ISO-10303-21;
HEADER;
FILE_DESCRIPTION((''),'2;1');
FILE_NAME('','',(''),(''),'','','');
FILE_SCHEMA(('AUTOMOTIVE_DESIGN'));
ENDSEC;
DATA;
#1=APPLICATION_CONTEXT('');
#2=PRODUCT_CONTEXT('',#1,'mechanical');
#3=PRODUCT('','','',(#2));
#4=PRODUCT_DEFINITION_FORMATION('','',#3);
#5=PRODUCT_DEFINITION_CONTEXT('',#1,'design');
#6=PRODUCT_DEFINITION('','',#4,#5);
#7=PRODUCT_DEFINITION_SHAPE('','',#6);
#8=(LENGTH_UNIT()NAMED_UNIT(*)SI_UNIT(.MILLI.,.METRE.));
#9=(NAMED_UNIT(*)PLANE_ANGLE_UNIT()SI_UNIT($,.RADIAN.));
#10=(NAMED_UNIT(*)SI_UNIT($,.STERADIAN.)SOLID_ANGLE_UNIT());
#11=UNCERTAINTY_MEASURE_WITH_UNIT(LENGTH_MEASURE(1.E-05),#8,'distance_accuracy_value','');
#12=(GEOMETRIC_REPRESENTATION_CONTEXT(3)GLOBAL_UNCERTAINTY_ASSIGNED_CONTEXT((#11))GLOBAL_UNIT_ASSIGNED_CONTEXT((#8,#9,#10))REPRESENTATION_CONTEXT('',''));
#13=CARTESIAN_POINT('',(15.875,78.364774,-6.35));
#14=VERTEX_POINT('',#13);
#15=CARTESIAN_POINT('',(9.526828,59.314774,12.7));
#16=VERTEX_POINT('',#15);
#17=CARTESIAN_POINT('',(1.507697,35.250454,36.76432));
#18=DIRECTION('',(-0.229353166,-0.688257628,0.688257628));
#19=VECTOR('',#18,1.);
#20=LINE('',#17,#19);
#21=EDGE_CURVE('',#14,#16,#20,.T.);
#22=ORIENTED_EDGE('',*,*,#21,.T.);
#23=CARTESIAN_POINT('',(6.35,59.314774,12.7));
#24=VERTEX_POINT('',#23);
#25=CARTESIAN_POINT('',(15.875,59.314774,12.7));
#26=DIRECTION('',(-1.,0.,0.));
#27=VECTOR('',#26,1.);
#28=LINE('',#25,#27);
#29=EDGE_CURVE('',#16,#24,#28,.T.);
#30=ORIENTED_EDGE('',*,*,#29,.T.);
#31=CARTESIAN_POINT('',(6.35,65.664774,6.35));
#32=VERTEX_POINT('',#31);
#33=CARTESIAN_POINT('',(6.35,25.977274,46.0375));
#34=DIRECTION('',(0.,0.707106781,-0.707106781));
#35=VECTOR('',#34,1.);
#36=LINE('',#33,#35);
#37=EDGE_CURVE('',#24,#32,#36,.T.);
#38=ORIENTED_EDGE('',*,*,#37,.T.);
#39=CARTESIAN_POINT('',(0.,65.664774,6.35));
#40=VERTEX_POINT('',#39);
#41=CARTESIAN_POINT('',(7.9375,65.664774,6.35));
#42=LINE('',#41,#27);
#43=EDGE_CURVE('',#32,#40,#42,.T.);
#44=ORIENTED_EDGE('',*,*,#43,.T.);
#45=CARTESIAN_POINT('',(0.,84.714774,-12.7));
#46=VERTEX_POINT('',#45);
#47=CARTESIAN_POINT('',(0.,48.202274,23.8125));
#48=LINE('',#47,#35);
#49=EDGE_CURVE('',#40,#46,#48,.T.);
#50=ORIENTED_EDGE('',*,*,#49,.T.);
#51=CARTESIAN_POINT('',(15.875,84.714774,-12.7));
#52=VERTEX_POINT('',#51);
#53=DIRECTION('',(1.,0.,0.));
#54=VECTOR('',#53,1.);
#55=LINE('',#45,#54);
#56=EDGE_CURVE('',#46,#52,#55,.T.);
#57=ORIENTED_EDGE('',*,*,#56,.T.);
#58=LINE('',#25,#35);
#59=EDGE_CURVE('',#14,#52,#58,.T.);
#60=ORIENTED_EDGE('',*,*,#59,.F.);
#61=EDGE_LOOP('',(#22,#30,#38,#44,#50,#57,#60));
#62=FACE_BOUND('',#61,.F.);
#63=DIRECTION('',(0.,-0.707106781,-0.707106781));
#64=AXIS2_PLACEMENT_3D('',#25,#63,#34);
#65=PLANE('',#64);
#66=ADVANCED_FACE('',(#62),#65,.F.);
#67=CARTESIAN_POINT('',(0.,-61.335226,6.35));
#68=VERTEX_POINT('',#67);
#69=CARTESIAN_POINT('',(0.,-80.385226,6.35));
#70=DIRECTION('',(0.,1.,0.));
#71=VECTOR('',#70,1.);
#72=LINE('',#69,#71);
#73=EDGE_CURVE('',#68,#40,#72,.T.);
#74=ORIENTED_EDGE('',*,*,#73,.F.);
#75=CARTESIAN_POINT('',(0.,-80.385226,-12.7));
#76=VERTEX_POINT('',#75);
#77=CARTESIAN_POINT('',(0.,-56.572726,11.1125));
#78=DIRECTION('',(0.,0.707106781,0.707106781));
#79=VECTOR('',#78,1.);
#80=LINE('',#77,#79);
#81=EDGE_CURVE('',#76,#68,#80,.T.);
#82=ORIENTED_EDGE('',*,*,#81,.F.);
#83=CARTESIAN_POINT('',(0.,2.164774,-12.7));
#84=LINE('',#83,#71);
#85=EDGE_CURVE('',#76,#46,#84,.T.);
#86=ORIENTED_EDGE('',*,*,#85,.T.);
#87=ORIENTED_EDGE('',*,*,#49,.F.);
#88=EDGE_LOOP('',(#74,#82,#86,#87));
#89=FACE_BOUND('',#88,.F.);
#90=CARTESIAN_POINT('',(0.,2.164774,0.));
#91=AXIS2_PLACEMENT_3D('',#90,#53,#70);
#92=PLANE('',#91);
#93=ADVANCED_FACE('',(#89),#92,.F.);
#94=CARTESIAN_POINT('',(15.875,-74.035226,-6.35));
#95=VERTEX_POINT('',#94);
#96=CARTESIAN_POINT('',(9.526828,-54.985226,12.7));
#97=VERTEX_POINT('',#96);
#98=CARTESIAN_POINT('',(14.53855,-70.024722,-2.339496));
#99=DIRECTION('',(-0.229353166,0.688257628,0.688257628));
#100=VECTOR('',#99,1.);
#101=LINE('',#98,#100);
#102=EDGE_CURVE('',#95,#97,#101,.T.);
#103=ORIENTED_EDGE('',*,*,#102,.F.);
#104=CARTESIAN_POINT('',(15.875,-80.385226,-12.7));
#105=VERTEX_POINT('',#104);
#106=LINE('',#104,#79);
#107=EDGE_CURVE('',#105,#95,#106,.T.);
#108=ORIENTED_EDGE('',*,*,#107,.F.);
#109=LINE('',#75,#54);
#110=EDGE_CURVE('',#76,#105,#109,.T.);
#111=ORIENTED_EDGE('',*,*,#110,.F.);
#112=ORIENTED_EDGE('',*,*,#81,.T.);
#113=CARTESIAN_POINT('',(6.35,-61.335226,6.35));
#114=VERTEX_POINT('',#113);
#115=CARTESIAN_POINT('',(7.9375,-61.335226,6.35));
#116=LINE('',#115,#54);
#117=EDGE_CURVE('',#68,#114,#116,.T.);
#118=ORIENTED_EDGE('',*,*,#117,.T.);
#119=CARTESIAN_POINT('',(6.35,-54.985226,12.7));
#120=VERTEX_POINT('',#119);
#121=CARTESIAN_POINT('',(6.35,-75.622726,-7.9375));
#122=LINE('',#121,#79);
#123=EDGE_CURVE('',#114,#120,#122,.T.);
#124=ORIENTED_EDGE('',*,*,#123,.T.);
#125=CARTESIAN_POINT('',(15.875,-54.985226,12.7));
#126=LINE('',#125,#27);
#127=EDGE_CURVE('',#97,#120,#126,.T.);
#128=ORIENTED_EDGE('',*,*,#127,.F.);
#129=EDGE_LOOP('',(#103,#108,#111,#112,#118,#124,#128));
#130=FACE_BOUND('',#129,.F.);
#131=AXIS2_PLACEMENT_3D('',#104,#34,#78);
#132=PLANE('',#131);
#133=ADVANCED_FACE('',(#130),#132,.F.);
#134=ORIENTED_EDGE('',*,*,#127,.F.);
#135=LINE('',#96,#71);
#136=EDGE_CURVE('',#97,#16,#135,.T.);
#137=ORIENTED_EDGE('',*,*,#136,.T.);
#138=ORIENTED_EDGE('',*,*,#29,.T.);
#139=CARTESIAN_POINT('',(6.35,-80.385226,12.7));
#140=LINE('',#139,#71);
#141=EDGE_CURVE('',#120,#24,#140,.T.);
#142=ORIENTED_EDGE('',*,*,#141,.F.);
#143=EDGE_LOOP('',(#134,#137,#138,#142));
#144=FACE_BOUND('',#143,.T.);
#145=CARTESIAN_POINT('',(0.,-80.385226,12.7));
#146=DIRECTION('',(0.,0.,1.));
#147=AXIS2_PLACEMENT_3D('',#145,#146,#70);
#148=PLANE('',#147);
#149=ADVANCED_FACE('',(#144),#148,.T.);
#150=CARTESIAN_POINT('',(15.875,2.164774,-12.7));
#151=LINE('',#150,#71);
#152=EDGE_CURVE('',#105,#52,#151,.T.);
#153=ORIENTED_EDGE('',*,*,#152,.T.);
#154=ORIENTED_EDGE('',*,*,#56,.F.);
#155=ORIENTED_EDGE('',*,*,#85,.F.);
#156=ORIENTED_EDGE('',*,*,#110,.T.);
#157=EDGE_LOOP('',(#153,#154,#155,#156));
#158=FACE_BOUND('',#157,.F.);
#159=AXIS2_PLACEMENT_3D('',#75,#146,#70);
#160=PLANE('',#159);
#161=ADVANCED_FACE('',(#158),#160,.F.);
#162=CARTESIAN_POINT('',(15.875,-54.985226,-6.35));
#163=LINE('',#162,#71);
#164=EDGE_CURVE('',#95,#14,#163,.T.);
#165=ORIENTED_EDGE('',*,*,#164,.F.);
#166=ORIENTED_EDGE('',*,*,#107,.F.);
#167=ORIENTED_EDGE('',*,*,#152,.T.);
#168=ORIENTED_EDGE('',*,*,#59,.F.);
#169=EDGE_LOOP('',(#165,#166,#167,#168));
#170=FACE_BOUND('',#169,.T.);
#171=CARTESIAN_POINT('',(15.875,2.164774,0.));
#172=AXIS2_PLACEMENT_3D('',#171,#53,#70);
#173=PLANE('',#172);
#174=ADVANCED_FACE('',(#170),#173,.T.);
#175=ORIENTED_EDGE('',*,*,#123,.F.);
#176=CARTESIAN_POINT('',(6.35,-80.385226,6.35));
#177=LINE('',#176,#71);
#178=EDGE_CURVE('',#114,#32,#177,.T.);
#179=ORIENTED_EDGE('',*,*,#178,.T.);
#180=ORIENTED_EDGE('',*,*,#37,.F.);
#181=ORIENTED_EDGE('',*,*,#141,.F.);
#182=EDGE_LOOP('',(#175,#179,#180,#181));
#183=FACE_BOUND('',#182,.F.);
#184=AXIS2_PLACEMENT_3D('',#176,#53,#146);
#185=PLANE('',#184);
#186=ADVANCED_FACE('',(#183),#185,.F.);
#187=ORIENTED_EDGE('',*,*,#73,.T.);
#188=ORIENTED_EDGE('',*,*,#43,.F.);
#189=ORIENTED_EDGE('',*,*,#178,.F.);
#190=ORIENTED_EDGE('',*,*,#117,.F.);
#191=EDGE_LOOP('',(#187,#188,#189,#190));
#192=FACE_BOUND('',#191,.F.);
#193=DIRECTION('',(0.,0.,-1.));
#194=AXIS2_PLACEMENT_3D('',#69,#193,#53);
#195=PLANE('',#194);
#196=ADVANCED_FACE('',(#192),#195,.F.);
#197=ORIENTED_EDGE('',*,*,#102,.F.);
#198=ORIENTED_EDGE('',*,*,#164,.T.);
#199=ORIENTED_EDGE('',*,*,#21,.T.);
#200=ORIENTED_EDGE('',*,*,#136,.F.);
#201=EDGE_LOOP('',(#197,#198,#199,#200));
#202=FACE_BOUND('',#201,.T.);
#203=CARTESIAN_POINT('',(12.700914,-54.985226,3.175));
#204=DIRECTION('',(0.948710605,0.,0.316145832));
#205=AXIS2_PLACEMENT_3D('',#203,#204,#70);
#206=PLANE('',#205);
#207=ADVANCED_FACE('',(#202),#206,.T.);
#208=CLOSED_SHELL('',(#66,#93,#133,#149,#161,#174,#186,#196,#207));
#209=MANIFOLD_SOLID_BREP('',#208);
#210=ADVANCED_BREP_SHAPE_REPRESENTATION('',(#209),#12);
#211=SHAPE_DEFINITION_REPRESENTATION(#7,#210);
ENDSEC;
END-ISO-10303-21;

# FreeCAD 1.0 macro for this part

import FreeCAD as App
import Part
import Sketcher

V = App.Vector
Q = App.Units.Quantity


def edges_at(feature, points):
    """Names of the edges that pass closest to the given points."""
    edges = feature.Shape.Edges
    near = lambda p: min(range(len(edges)), key=lambda i: edges[i].distToShape(Part.Vertex(*p))[0])
    return sorted({f"Edge{near(p) + 1}" for p in points})


def add_polygon(sketch, points):
    """Adds a closed chain of lines whose ends are joined by coincident constraints."""
    first, n = sketch.GeometryCount, len(points)
    for a, b in zip(points, points[1:] + points[:1]):
        sketch.addGeometry(Part.LineSegment(App.Vector(*a, 0), App.Vector(*b, 0)), False)
    for i in range(n):
        sketch.addConstraint(Sketcher.Constraint("Coincident", first + i, 2, first + (i + 1) % n, 1))

doc = App.newDocument("Part")
params = doc.addObject("Spreadsheet::Sheet", "Params")
for row, (alias, value) in enumerate([
    ("sketch1_height", "1 in"),
    ("sketch1_width", "6.5 in"),
    ("pad1_length", "0.625 in"),
    ("sketch2_width", "0.25 in"),
    ("sketch3_width", "1 in"),
    ("chamfer_size", "0.75 in"),
    ("chamfer_size2", "6.348172 mm"),
], start=1):
    params.set(f"A{row}", alias)
    params.set(f"B{row}", "=" + value)
    params.setAlias(f"B{row}", alias)

body = doc.addObject("PartDesign::Body", "Body")

# Sketch on YZ plane
sketch1 = doc.addObject("Sketcher::SketchObject", "Sketch")
body.addObject(sketch1)
sketch1.AttachmentSupport = (doc.YZ_Plane, [""])
sketch1.MapMode = "FlatFace"
add_polygon(sketch1, [(-80.385226, 12.7), (-80.385226, -12.7), (84.714774, -12.7), (84.714774, 12.7)])  # lines 0-3
sketch1.addConstraint([
    Sketcher.Constraint("Vertical", 0),
    Sketcher.Constraint("Horizontal", 1),
    Sketcher.Constraint("Vertical", 2),
    Sketcher.Constraint("Horizontal", 3),
    Sketcher.Constraint("DistanceY", 0, 2, 0, 1, Q("1 in")),
    Sketcher.Constraint("DistanceX", 1, 1, 1, 2, Q("6.5 in")),
    Sketcher.Constraint("DistanceY", 0, 2, -1, 1, Q("0.5 in")),
    Sketcher.Constraint("DistanceX", 0, 2, -1, 1, Q("80.385226 mm")),
])
sketch1.setExpression("Constraints[8]", "Params.sketch1_height")
sketch1.setExpression("Constraints[9]", "Params.sketch1_width")
pad1 = doc.addObject("PartDesign::Pad", "Pad")
body.addObject(pad1)
pad1.Profile = sketch1
pad1.setExpression("Length", "Params.pad1_length")

# Sketch on XZ plane
sketch2 = doc.addObject("Sketcher::SketchObject", "Sketch001")
body.addObject(sketch2)
sketch2.AttachmentSupport = (doc.XZ_Plane, [""])
sketch2.MapMode = "FlatFace"
sketch2.AttachmentOffset = App.Placement(V(0, 0, 80.385226), App.Rotation())
add_polygon(sketch2, [(0, 12.7), (0, 6.35), (6.35, 6.35), (6.35, 12.7)])  # lines 0-3
sketch2.addConstraint([
    Sketcher.Constraint("Vertical", 0),
    Sketcher.Constraint("Horizontal", 1),
    Sketcher.Constraint("Vertical", 2),
    Sketcher.Constraint("Horizontal", 3),
    Sketcher.Constraint("PointOnObject", 0, 2, -2),
    Sketcher.Constraint("Equal", 3, 0),
    Sketcher.Constraint("DistanceX", 1, 1, 1, 2, Q("0.25 in")),
    Sketcher.Constraint("DistanceY", -1, 1, 2, 2, Q("0.5 in")),
])
sketch2.setExpression("Constraints[10]", "Params.sketch2_width")
pocket1 = doc.addObject("PartDesign::Pocket", "Pocket")
body.addObject(pocket1)
pocket1.Profile = sketch2
pocket1.Type = "ThroughAll"

# Sketch on YZ plane
sketch3 = doc.addObject("Sketcher::SketchObject", "Sketch002")
body.addObject(sketch3)
sketch3.AttachmentSupport = (doc.YZ_Plane, [""])
sketch3.MapMode = "FlatFace"
sketch3.AttachmentOffset = App.Placement(V(0, 0, 0.625 * 25.4), App.Rotation())
add_polygon(sketch3, [(-80.385226, 12.7), (-80.385226, -12.7), (-54.985226, 12.7)])  # lines 0-2
add_polygon(sketch3, [(59.314774, 12.7), (84.714774, -12.7), (84.714774, 12.7)])  # lines 3-5
sketch3.addConstraint([
    Sketcher.Constraint("Vertical", 0),
    Sketcher.Constraint("Horizontal", 2),
    Sketcher.Constraint("Vertical", 4),
    Sketcher.Constraint("Horizontal", 5),
    Sketcher.Constraint("Perpendicular", 1, 3),
    Sketcher.Constraint("Horizontal", 0, 2, 3, 2),
    Sketcher.Constraint("Horizontal", 2, 2, 4, 2),
    Sketcher.Constraint("Equal", 2, 5),
    Sketcher.Constraint("DistanceX", 2, 2, 2, 1, Q("1 in")),
    Sketcher.Constraint("DistanceY", 0, 2, -1, 1, Q("0.5 in")),
    Sketcher.Constraint("DistanceX", 1, 2, 3, 2, Q("5.5 in")),
    Sketcher.Constraint("DistanceX", 0, 2, -1, 1, Q("80.385226 mm")),
])
sketch3.setExpression("Constraints[14]", "Params.sketch3_width")
pocket2 = doc.addObject("PartDesign::Pocket", "Pocket001")
body.addObject(pocket2)
pocket2.Profile = sketch3
pocket2.Type = "ThroughAll"
doc.recompute()

chamfer = doc.addObject("PartDesign::Chamfer", "Chamfer")
body.addObject(chamfer)
chamfer.Base = (pocket2, edges_at(pocket2, [(15.875, 2.165, 12.7)]))
chamfer.ChamferType = "Two distances"
chamfer.setExpression("Size", "Params.chamfer_size")
chamfer.setExpression("Size2", "Params.chamfer_size2")

doc.recompute()
